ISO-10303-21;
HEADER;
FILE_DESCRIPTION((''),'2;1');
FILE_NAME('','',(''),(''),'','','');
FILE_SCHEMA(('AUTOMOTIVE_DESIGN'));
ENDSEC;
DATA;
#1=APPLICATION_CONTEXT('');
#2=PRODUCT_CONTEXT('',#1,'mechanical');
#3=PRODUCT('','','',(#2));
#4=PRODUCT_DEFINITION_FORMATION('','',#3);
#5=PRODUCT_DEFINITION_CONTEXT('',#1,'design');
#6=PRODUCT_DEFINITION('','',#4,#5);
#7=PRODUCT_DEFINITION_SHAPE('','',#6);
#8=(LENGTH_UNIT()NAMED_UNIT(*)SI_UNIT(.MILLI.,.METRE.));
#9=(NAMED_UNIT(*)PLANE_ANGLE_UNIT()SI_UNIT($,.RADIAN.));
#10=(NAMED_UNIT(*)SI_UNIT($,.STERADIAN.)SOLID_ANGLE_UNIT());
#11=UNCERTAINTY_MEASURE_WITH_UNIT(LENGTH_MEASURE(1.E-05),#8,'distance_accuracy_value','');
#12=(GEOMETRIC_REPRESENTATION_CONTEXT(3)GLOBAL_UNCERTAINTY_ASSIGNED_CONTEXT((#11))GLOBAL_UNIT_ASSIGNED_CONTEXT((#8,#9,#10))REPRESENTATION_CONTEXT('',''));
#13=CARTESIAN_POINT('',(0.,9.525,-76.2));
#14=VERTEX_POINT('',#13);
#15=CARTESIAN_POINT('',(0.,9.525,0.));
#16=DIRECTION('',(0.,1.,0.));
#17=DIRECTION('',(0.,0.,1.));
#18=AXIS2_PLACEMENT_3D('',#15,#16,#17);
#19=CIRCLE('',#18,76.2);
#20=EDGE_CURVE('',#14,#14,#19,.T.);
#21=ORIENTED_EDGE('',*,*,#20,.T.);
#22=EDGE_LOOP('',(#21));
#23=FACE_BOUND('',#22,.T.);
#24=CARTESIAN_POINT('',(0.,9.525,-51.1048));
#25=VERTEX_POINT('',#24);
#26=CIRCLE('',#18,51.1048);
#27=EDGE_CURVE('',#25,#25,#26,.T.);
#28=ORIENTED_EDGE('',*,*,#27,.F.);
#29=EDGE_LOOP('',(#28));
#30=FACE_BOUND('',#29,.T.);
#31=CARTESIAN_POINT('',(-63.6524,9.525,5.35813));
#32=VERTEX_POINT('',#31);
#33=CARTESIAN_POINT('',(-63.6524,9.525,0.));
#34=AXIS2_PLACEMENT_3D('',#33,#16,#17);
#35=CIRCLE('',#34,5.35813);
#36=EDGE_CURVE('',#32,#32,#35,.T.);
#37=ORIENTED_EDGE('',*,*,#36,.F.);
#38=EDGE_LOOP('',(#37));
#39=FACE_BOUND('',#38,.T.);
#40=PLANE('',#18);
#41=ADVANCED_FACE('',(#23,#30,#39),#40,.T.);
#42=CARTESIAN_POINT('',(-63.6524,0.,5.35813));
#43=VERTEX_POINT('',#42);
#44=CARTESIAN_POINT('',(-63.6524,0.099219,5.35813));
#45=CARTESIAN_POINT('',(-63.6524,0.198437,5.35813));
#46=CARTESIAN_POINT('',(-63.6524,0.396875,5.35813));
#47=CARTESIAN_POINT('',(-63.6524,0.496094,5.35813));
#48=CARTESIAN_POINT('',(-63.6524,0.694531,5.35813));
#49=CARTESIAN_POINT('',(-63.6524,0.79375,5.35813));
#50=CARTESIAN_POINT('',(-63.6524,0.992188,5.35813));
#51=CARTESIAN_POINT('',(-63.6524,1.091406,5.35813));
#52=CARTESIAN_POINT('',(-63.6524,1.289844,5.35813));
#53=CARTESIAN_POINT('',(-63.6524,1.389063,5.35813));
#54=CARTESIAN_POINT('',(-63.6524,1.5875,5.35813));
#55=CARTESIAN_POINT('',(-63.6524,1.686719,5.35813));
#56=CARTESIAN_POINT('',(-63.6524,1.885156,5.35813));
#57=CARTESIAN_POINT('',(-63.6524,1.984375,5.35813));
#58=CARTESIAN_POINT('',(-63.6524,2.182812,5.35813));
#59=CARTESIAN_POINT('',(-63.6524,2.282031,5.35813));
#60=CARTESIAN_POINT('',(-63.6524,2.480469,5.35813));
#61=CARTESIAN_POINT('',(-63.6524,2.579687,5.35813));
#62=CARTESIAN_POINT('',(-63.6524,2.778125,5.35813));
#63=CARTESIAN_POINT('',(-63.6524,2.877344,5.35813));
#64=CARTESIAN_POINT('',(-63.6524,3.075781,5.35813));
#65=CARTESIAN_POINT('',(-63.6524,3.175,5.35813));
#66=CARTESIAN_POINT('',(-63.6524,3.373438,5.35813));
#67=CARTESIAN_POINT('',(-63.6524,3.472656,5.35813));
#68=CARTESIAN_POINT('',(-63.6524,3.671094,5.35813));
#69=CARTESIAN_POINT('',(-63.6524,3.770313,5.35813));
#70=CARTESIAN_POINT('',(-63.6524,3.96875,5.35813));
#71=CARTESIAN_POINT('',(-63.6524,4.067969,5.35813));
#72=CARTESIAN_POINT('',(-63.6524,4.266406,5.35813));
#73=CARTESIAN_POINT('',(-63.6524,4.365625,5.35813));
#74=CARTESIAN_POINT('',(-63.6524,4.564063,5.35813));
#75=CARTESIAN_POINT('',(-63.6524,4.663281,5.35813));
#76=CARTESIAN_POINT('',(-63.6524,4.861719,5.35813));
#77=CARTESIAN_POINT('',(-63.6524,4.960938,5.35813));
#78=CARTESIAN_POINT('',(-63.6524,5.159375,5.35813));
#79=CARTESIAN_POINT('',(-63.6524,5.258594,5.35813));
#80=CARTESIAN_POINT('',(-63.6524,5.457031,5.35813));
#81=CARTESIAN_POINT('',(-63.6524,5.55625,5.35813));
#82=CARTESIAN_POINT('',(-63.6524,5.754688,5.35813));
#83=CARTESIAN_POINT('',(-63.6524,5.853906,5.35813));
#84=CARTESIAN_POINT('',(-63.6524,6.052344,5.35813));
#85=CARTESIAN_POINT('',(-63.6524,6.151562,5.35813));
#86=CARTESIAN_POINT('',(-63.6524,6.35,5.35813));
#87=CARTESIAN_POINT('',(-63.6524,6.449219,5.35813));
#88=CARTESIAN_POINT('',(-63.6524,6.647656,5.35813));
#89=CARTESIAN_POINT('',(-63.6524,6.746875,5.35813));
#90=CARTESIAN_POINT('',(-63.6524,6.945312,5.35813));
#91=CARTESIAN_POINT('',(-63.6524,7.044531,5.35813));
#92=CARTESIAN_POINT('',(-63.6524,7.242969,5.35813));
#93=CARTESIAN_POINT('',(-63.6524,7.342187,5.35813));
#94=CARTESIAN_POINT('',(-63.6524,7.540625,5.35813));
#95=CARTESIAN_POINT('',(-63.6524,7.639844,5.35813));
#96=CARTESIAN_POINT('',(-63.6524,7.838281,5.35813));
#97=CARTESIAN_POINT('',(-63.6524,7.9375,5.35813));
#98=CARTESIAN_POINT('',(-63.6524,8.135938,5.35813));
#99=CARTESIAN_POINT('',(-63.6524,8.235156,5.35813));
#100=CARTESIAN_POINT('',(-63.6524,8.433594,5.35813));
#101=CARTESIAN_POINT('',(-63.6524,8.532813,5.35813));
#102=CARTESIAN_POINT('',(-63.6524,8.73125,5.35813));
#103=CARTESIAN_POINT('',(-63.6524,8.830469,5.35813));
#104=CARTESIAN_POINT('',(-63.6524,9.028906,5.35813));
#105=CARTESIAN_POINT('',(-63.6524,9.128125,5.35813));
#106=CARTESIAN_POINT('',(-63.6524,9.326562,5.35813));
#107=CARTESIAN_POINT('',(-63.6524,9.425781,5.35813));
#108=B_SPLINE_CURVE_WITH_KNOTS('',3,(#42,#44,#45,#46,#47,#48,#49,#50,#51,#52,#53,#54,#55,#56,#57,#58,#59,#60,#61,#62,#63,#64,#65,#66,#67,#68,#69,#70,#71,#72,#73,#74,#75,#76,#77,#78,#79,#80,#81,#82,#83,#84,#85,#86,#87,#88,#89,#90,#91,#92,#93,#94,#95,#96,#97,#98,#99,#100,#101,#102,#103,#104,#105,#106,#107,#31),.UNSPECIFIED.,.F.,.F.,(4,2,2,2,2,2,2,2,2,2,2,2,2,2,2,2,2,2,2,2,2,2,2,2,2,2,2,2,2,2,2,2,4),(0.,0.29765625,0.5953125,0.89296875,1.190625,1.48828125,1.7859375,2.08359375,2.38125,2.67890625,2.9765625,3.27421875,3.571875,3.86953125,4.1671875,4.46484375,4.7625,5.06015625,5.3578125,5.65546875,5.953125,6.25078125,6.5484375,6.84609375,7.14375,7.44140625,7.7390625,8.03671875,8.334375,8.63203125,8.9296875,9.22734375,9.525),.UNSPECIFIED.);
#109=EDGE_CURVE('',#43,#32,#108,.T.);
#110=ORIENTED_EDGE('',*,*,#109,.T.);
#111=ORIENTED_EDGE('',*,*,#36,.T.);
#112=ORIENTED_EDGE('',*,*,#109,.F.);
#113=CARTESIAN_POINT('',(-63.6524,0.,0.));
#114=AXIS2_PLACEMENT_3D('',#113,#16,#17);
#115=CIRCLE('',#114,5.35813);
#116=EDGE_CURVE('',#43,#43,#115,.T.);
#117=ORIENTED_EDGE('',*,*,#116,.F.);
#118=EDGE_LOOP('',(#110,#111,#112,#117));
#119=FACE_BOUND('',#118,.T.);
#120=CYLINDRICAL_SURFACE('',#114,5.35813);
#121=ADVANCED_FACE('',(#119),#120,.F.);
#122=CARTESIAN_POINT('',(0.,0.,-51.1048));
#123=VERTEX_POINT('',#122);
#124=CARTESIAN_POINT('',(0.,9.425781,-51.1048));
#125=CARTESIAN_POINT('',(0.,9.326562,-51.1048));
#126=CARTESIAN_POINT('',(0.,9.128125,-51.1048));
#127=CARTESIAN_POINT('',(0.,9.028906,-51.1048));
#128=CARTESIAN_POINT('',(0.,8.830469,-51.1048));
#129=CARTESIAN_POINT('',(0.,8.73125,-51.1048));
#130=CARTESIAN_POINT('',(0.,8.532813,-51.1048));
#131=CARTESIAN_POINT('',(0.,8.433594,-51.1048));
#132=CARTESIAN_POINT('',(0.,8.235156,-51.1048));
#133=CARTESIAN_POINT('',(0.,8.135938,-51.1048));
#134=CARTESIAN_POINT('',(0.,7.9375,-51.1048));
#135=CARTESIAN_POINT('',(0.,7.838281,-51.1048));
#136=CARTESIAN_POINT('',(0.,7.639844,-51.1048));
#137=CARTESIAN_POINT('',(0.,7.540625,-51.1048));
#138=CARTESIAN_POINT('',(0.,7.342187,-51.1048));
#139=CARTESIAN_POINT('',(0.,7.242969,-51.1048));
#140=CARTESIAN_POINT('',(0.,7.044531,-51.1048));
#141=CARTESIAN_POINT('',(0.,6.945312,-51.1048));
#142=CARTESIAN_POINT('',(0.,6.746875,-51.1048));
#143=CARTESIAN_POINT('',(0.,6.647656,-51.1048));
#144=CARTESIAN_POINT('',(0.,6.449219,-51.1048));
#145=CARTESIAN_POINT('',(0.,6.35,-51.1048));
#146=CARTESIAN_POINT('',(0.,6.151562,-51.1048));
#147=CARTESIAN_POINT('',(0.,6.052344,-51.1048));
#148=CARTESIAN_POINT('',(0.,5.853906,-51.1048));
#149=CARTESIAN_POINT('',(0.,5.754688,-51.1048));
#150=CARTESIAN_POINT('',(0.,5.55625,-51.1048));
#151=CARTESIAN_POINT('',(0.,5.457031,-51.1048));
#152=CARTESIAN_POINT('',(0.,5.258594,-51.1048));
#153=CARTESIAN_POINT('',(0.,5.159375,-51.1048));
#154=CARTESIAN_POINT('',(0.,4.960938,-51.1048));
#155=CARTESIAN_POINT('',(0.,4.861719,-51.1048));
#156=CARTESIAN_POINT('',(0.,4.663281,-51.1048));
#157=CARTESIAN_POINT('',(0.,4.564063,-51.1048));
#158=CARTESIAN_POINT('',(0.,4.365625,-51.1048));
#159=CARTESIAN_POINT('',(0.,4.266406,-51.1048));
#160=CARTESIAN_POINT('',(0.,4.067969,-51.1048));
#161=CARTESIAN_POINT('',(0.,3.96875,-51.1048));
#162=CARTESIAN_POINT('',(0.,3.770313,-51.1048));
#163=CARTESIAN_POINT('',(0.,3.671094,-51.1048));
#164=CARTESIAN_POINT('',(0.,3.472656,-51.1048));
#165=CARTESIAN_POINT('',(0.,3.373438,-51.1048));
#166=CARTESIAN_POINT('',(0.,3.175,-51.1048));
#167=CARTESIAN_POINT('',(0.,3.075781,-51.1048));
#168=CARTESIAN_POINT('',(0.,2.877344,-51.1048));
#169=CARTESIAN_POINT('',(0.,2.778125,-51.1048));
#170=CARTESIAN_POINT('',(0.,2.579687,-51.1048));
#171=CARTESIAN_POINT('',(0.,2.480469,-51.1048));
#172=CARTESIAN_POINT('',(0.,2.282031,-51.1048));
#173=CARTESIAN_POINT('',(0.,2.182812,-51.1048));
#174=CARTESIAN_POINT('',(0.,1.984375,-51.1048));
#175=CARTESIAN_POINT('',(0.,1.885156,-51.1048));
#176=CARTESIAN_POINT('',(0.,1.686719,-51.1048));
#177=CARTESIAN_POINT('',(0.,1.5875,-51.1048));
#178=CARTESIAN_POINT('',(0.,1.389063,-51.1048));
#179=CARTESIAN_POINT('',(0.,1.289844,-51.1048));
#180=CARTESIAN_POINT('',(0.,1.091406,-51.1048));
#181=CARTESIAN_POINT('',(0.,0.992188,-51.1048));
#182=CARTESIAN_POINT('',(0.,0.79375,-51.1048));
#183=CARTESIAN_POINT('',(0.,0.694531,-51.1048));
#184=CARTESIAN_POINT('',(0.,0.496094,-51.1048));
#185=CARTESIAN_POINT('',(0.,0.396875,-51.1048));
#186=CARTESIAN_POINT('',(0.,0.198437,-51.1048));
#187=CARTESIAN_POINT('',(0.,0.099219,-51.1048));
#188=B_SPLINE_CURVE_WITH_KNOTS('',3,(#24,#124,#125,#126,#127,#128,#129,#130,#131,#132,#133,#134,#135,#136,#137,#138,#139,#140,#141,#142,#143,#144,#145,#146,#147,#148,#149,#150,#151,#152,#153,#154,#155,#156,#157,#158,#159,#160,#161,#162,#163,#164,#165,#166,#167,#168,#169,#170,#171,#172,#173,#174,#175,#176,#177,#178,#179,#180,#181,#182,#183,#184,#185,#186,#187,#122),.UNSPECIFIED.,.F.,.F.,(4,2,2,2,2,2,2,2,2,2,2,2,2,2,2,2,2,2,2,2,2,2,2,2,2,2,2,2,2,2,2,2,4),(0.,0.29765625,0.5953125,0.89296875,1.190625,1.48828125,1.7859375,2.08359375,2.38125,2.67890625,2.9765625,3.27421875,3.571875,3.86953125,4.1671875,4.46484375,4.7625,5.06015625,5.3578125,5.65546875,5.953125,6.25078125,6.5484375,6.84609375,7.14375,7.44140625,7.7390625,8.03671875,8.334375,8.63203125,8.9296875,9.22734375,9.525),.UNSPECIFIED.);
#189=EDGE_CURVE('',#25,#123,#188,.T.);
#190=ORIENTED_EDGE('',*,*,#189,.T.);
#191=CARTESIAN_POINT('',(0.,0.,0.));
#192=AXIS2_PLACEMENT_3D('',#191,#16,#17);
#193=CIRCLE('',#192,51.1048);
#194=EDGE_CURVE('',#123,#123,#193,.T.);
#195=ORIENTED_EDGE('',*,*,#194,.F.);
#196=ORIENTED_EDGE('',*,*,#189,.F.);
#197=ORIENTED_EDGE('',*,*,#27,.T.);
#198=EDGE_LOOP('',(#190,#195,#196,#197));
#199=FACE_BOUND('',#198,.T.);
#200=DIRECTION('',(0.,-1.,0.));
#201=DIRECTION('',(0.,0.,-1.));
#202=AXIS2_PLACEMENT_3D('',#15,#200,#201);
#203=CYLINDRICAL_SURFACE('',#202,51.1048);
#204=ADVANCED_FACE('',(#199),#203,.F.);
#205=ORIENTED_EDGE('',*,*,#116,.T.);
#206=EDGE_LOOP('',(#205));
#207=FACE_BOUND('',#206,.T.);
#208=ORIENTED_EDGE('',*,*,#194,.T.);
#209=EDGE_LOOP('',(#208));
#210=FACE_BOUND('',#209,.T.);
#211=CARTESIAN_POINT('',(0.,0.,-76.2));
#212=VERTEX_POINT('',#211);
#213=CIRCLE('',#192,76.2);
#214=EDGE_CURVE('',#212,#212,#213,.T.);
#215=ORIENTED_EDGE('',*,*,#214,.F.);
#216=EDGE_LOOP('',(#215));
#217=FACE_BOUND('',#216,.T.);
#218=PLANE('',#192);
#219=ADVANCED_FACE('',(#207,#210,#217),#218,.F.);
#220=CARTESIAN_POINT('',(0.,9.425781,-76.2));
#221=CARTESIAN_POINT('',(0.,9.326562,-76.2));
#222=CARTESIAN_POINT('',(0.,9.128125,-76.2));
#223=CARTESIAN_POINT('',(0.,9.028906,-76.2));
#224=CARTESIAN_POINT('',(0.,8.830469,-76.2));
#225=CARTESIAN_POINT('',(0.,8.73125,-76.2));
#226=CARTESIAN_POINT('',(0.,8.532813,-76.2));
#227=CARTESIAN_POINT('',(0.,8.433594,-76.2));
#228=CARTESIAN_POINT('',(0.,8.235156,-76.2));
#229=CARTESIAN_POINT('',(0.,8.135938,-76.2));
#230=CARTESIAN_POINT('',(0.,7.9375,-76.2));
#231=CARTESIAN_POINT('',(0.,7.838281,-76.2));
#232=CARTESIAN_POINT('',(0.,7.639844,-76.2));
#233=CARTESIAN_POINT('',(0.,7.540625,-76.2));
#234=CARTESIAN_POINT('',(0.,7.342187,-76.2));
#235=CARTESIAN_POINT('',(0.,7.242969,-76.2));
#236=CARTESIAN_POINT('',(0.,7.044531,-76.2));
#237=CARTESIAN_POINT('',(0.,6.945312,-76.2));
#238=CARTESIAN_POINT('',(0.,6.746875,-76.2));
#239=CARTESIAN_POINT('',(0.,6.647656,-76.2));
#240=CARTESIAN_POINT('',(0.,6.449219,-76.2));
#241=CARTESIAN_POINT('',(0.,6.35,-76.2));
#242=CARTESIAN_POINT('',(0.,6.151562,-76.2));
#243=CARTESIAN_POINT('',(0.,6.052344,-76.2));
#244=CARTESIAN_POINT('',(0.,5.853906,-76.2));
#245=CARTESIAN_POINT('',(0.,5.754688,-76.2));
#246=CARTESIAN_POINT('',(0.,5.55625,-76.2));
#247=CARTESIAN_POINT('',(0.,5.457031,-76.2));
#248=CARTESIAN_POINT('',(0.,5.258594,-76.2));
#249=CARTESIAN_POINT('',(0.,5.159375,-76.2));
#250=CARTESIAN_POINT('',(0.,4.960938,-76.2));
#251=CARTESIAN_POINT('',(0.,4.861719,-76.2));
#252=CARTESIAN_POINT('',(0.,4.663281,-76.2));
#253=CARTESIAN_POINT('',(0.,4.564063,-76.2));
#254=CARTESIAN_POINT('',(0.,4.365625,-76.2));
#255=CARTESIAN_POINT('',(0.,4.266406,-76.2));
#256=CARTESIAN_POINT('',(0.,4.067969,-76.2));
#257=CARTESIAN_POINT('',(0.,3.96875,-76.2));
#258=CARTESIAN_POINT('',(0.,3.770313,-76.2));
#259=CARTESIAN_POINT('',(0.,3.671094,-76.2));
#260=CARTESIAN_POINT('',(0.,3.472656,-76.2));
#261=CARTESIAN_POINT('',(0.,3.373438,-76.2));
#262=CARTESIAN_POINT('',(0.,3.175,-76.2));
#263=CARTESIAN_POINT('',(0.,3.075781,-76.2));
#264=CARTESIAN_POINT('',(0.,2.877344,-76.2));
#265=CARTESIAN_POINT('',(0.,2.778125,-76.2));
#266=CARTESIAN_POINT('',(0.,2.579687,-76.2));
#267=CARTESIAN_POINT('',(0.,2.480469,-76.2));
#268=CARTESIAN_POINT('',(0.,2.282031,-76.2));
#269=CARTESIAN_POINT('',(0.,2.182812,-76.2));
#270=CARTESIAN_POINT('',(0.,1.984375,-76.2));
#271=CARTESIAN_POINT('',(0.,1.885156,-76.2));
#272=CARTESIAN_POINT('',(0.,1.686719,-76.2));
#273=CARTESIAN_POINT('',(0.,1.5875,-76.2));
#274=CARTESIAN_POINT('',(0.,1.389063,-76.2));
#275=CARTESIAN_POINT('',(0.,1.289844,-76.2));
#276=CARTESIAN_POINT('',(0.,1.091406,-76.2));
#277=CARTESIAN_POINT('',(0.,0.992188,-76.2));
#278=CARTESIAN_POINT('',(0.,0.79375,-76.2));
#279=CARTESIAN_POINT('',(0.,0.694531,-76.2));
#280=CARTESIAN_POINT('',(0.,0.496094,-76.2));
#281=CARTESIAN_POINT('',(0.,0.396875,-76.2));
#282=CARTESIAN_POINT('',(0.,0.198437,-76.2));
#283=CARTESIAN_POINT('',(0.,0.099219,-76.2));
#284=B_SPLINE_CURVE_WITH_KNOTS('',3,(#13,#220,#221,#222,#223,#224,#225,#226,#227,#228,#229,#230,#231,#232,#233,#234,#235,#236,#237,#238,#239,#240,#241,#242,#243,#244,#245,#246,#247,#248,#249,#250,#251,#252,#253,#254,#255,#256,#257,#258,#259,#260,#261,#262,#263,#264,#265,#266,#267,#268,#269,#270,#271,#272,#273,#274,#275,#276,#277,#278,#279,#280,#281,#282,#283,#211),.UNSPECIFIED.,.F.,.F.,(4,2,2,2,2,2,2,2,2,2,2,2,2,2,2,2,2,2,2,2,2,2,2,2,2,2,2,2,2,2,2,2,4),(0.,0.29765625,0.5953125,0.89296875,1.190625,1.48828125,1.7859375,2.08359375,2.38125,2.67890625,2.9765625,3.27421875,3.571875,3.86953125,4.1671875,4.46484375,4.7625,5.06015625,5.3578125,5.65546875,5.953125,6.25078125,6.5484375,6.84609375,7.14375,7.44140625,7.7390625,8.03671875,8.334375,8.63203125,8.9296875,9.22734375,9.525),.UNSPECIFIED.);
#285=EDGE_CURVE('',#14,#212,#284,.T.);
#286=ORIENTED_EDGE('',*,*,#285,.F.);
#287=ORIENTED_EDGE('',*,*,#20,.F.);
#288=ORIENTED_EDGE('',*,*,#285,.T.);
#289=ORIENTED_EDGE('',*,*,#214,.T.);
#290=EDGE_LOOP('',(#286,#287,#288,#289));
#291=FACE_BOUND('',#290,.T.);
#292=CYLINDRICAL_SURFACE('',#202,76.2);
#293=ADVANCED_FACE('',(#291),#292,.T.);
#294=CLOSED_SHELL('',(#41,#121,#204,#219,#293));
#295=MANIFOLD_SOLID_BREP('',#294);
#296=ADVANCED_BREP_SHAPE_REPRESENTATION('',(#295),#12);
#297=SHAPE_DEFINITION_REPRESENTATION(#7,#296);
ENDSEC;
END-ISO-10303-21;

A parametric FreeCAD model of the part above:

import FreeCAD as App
import Part
import Sketcher

V = App.Vector
Q = App.Units.Quantity

doc = App.newDocument("Part")
params = doc.addObject("Spreadsheet::Sheet", "Params")
for row, (alias, value) in enumerate([
    ("sketch1_diameter", "6 in"),
    ("sketch1_diameter2", "4.024 in"),
    ("pad1_length", "0.375 in"),
], start=1):
    params.set(f"A{row}", alias)
    params.set(f"B{row}", "=" + value)
    params.setAlias(f"B{row}", alias)

body = doc.addObject("PartDesign::Body", "Body")

# Sketch on XZ plane
sketch1 = body.newObject("Sketcher::SketchObject", "Sketch")
sketch1.AttachmentSupport = (doc.getObject("XZ_Plane"), [""])
sketch1.MapMode = "FlatFace"
sketch1.addGeometry([
    Part.Circle(V(0, 0, 0), V(0, 0, 1), 76.2),
    Part.Circle(V(0, 0, 0), V(0, 0, 1), 51.1048),
], False)
sketch1.addConstraint([
    Sketcher.Constraint("Coincident", 0, 3, -1, 1),
    Sketcher.Constraint("Coincident", 1, 3, -1, 1),
    Sketcher.Constraint("Diameter", 0, Q("6 in")),
    Sketcher.Constraint("Diameter", 1, Q("4.024 in")),
])
sketch1.setExpression("Constraints[2]", "Params.sketch1_diameter")
sketch1.setExpression("Constraints[3]", "Params.sketch1_diameter2")
pad1 = body.newObject("PartDesign::Pad", "Pad")
pad1.Profile = sketch1
pad1.setExpression("Length", "Params.pad1_length")
pad1.Reversed = True

# Sketch on XZ plane
sketch2 = body.newObject("Sketcher::SketchObject", "Sketch001")
sketch2.AttachmentSupport = (doc.getObject("XZ_Plane"), [""])
sketch2.MapMode = "FlatFace"
sketch2.AttachmentOffset = App.Placement(V(0, 0, -0.375 * 25.4), App.Rotation())
sketch2.addGeometry(Part.Circle(V(-63.6524, 0, 0), V(0, 0, 1), 5.35813), False)
sketch2.addConstraint([
    Sketcher.Constraint("PointOnObject", 0, 3, -1),
    Sketcher.Constraint("Diameter", 0, Q("0.4219 in")),
    Sketcher.Constraint("DistanceX", 0, 3, -1, 1, Q("2.506 in")),
])
pocket1 = body.newObject("PartDesign::Pocket", "Pocket")
pocket1.Profile = sketch2
pocket1.Type = "ThroughAll"
pocket1.Reversed = True

doc.recompute()
